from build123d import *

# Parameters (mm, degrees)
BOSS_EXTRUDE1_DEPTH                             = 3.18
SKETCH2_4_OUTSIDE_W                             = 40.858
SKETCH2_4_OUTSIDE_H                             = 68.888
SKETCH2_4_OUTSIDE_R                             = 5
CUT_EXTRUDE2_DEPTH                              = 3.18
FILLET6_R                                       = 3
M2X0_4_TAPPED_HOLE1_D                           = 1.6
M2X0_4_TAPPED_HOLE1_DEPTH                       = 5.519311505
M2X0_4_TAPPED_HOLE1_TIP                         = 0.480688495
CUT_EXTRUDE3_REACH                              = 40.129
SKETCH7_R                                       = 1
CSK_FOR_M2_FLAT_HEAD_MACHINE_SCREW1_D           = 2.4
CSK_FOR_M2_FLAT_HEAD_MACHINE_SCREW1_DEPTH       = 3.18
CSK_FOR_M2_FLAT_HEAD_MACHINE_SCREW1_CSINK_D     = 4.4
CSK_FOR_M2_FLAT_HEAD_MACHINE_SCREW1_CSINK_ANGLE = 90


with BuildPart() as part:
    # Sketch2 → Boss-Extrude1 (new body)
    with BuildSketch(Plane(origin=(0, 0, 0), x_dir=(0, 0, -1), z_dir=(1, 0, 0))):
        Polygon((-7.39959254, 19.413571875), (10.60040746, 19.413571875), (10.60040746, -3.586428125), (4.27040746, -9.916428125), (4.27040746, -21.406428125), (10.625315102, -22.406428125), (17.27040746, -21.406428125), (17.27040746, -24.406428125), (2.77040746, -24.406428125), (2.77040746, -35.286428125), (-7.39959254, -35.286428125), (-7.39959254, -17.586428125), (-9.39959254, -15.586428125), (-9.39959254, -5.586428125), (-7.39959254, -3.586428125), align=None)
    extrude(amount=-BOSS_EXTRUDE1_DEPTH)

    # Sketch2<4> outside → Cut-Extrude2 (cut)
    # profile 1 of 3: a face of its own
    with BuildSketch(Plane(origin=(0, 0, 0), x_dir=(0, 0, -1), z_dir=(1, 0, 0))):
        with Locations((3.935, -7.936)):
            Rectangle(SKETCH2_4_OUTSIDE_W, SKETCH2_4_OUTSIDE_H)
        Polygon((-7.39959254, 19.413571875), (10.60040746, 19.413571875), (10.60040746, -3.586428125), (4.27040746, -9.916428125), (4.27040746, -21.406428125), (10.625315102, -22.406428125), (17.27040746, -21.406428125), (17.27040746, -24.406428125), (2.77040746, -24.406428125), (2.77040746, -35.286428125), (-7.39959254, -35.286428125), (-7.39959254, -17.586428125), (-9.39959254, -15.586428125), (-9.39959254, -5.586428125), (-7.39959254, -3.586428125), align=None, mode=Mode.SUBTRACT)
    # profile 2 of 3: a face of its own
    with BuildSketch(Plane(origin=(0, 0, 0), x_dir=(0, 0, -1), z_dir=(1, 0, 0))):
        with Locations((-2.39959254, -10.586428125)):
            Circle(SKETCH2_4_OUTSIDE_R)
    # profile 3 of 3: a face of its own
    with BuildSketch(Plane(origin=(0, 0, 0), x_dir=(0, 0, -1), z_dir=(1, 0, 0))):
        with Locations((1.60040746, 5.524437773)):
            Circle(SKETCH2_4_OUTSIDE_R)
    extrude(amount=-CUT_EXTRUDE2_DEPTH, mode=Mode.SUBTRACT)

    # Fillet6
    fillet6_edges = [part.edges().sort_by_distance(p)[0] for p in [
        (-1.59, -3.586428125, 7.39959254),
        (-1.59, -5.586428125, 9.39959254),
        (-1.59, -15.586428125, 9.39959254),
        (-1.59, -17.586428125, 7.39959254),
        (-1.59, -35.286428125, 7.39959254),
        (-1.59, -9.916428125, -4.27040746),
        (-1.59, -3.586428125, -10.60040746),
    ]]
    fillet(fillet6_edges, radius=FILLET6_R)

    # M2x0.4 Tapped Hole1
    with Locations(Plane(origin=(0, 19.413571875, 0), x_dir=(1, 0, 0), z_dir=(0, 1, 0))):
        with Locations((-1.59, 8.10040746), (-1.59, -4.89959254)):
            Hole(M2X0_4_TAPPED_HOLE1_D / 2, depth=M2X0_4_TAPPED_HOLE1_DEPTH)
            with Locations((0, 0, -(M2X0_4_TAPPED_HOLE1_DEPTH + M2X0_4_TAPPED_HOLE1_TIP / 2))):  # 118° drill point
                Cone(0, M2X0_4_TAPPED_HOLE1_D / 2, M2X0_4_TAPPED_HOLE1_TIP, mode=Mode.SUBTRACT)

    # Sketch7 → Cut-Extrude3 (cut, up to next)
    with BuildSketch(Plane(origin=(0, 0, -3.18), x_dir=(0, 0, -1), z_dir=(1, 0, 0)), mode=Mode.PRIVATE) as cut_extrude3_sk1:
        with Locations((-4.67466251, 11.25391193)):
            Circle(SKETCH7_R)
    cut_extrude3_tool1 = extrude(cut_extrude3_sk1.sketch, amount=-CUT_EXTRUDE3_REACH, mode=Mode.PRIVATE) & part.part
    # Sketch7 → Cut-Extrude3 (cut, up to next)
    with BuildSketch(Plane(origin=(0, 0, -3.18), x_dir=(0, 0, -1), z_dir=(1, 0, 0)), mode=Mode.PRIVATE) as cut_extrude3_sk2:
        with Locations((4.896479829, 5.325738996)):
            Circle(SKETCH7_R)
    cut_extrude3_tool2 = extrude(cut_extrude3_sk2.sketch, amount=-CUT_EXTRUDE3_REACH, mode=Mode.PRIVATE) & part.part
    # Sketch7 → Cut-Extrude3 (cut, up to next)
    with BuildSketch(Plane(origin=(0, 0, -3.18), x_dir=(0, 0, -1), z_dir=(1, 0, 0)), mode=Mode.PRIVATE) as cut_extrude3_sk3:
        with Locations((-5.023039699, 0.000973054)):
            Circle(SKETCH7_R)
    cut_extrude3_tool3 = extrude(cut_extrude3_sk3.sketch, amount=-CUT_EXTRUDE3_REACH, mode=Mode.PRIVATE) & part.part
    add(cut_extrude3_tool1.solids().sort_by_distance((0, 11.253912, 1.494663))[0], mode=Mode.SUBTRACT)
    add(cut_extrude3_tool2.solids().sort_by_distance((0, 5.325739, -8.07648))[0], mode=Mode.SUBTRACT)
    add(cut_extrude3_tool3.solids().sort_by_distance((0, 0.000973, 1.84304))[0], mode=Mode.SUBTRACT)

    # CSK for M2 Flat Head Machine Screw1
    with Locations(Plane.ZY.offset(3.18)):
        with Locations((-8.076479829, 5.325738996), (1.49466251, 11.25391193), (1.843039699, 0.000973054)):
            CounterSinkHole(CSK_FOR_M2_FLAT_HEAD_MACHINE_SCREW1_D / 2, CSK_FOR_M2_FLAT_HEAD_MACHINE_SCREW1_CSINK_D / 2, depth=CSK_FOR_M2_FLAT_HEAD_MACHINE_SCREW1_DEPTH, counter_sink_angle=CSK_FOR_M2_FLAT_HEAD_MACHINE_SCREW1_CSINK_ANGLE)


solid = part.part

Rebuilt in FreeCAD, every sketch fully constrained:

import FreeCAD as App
import Part
import Sketcher
Q = App.Units.Quantity


def edges_at(feature, points):
    """Names of the edges that pass closest to the given points."""
    edges = feature.Shape.Edges
    near = lambda p: min(range(len(edges)), key=lambda i: edges[i].distToShape(Part.Vertex(*p))[0])
    return sorted({f"Edge{near(p) + 1}" for p in points})

doc = App.newDocument("Part")
body = doc.addObject("PartDesign::Body", "Body")

# Sketch on YZ plane
sketch1 = body.newObject("Sketcher::SketchObject", "Sketch")
sketch1.AttachmentSupport = (doc.getObject("YZ_Plane"), [""])
sketch1.MapMode = "FlatFace"
sketch1.addGeometry(Part.LineSegment(App.Vector(19.4, -10.6, 0), App.Vector(19.4, 7.4, 0)), False)
sketch1.addGeometry(Part.LineSegment(App.Vector(19.4, 7.4, 0), App.Vector(-3.6, 7.4, 0)), False)
sketch1.addGeometry(Part.LineSegment(App.Vector(-3.6, 7.4, 0), App.Vector(-5.6, 9.4, 0)), False)
sketch1.addGeometry(Part.LineSegment(App.Vector(-5.6, 9.4, 0), App.Vector(-15.6, 9.4, 0)), False)
sketch1.addGeometry(Part.LineSegment(App.Vector(-15.6, 9.4, 0), App.Vector(-17.6, 7.4, 0)), False)
sketch1.addGeometry(Part.LineSegment(App.Vector(-17.6, 7.4, 0), App.Vector(-35.3, 7.4, 0)), False)
sketch1.addGeometry(Part.LineSegment(App.Vector(-35.3, 7.4, 0), App.Vector(-35.3, -2.8, 0)), False)
sketch1.addGeometry(Part.LineSegment(App.Vector(-35.3, -2.8, 0), App.Vector(-24.4, -2.8, 0)), False)
sketch1.addGeometry(Part.LineSegment(App.Vector(-24.4, -2.8, 0), App.Vector(-24.4, -17.3, 0)), False)
sketch1.addGeometry(Part.LineSegment(App.Vector(-24.4, -17.3, 0), App.Vector(-21.4, -17.3, 0)), False)
sketch1.addGeometry(Part.LineSegment(App.Vector(-21.4, -17.3, 0), App.Vector(-22.4, -10.6, 0)), False)
sketch1.addGeometry(Part.LineSegment(App.Vector(-22.4, -10.6, 0), App.Vector(-21.4, -4.3, 0)), False)
sketch1.addGeometry(Part.LineSegment(App.Vector(-21.4, -4.3, 0), App.Vector(-9.9, -4.3, 0)), False)
sketch1.addGeometry(Part.LineSegment(App.Vector(-9.9, -4.3, 0), App.Vector(-3.6, -10.6, 0)), False)
sketch1.addGeometry(Part.LineSegment(App.Vector(-3.6, -10.6, 0), App.Vector(19.4, -10.6, 0)), False)
sketch1.addConstraint(Sketcher.Constraint("Coincident", 0, 2, 1, 1))
sketch1.addConstraint(Sketcher.Constraint("Coincident", 1, 2, 2, 1))
sketch1.addConstraint(Sketcher.Constraint("Coincident", 2, 2, 3, 1))
sketch1.addConstraint(Sketcher.Constraint("Coincident", 3, 2, 4, 1))
sketch1.addConstraint(Sketcher.Constraint("Coincident", 4, 2, 5, 1))
sketch1.addConstraint(Sketcher.Constraint("Coincident", 5, 2, 6, 1))
sketch1.addConstraint(Sketcher.Constraint("Coincident", 6, 2, 7, 1))
sketch1.addConstraint(Sketcher.Constraint("Coincident", 7, 2, 8, 1))
sketch1.addConstraint(Sketcher.Constraint("Coincident", 8, 2, 9, 1))
sketch1.addConstraint(Sketcher.Constraint("Coincident", 9, 2, 10, 1))
sketch1.addConstraint(Sketcher.Constraint("Coincident", 10, 2, 11, 1))
sketch1.addConstraint(Sketcher.Constraint("Coincident", 11, 2, 12, 1))
sketch1.addConstraint(Sketcher.Constraint("Coincident", 12, 2, 13, 1))
sketch1.addConstraint(Sketcher.Constraint("Coincident", 13, 2, 14, 1))
sketch1.addConstraint(Sketcher.Constraint("Coincident", 14, 2, 0, 1))
sketch1.addConstraint(Sketcher.Constraint("Vertical", 0))
sketch1.addConstraint(Sketcher.Constraint("Horizontal", 1))
sketch1.addConstraint(Sketcher.Constraint("Horizontal", 3))
sketch1.addConstraint(Sketcher.Constraint("Horizontal", 5))
sketch1.addConstraint(Sketcher.Constraint("Vertical", 6))
sketch1.addConstraint(Sketcher.Constraint("Horizontal", 7))
sketch1.addConstraint(Sketcher.Constraint("Vertical", 8))
sketch1.addConstraint(Sketcher.Constraint("Horizontal", 9))
sketch1.addConstraint(Sketcher.Constraint("Horizontal", 12))
sketch1.addConstraint(Sketcher.Constraint("Horizontal", 14))
sketch1.addConstraint(Sketcher.Constraint("Perpendicular", 2, 4))
sketch1.addConstraint(Sketcher.Constraint("Perpendicular", 4, 13))
sketch1.addConstraint(Sketcher.Constraint("Horizontal", 1, 2, 4, 2))
sketch1.addConstraint(Sketcher.Constraint("Vertical", 9, 2, 11, 2))
sketch1.addConstraint(Sketcher.Constraint("Vertical", 1, 2, 13, 2))
sketch1.addConstraint(Sketcher.Constraint("Equal", 2, 4))
sketch1.addConstraint(Sketcher.Constraint("DistanceX", 1, 2, 1, 1, Q("23 mm")))
sketch1.addConstraint(Sketcher.Constraint("DistanceX", 3, 2, 3, 1, Q("10 mm")))
sketch1.addConstraint(Sketcher.Constraint("DistanceX", 9, 1, 9, 2, Q("3 mm")))
sketch1.addConstraint(Sketcher.Constraint("DistanceY", 0, 1, 0, 2, Q("18 mm")))
sketch1.addConstraint(Sketcher.Constraint("DistanceX", 5, 2, 5, 1, Q("17.7 mm")))
sketch1.addConstraint(Sketcher.Constraint("DistanceY", 8, 2, 8, 1, Q("14.5 mm")))
sketch1.addConstraint(Sketcher.Constraint("DistanceX", 2, 2, 1, 2, Q("2 mm")))
sketch1.addConstraint(Sketcher.Constraint("DistanceX", 10, 2, 9, 2, Q("1 mm")))
sketch1.addConstraint(Sketcher.Constraint("DistanceY", 9, 2, 11, 2, Q("13 mm")))
sketch1.addConstraint(Sketcher.Constraint("DistanceX", 7, 1, 7, 2, Q("10.88 mm")))
sketch1.addConstraint(Sketcher.Constraint("DistanceX", 12, 1, 12, 2, Q("11.49 mm")))
sketch1.addConstraint(Sketcher.Constraint("DistanceX", -1, 1, 0, 2, Q("19.413572 mm")))
sketch1.addConstraint(Sketcher.Constraint("Distance", 10, Q("6.719915 mm")))
sketch1.addConstraint(Sketcher.Constraint("DistanceY", -1, 1, 0, 2, Q("7.399593 mm")))
pad1 = body.newObject("PartDesign::Pad", "Pad")
pad1.Profile = sketch1
pad1.Length = 3.18
pad1.Reversed = True

# Sketch on YZ plane
sketch2 = body.newObject("Sketcher::SketchObject", "Sketch001")
sketch2.AttachmentSupport = (doc.getObject("YZ_Plane"), [""])
sketch2.MapMode = "FlatFace"
sketch2.addGeometry(Part.LineSegment(App.Vector(26.5, 16.5, 0), App.Vector(-42.4, 16.5, 0)), False)
sketch2.addGeometry(Part.LineSegment(App.Vector(-42.4, 16.5, 0), App.Vector(-42.4, -24.4, 0)), False)
sketch2.addGeometry(Part.LineSegment(App.Vector(-42.4, -24.4, 0), App.Vector(26.5, -24.4, 0)), False)
sketch2.addGeometry(Part.LineSegment(App.Vector(26.5, -24.4, 0), App.Vector(26.5, 16.5, 0)), False)
sketch2.addGeometry(Part.LineSegment(App.Vector(-3.6, 7.4, 0), App.Vector(19.4, 7.4, 0)), False)
sketch2.addGeometry(Part.LineSegment(App.Vector(19.4, 7.4, 0), App.Vector(19.4, -10.6, 0)), False)
sketch2.addGeometry(Part.LineSegment(App.Vector(19.4, -10.6, 0), App.Vector(-3.6, -10.6, 0)), False)
sketch2.addGeometry(Part.LineSegment(App.Vector(-3.6, -10.6, 0), App.Vector(-9.9, -4.3, 0)), False)
sketch2.addGeometry(Part.LineSegment(App.Vector(-9.9, -4.3, 0), App.Vector(-21.4, -4.3, 0)), False)
sketch2.addGeometry(Part.LineSegment(App.Vector(-21.4, -4.3, 0), App.Vector(-22.4, -10.6, 0)), False)
sketch2.addGeometry(Part.LineSegment(App.Vector(-22.4, -10.6, 0), App.Vector(-21.4, -17.3, 0)), False)
sketch2.addGeometry(Part.LineSegment(App.Vector(-21.4, -17.3, 0), App.Vector(-24.4, -17.3, 0)), False)
sketch2.addGeometry(Part.LineSegment(App.Vector(-24.4, -17.3, 0), App.Vector(-24.4, -2.8, 0)), False)
sketch2.addGeometry(Part.LineSegment(App.Vector(-24.4, -2.8, 0), App.Vector(-35.3, -2.8, 0)), False)
sketch2.addGeometry(Part.LineSegment(App.Vector(-35.3, -2.8, 0), App.Vector(-35.3, 7.4, 0)), False)
sketch2.addGeometry(Part.LineSegment(App.Vector(-35.3, 7.4, 0), App.Vector(-17.6, 7.4, 0)), False)
sketch2.addGeometry(Part.LineSegment(App.Vector(-17.6, 7.4, 0), App.Vector(-15.6, 9.4, 0)), False)
sketch2.addGeometry(Part.LineSegment(App.Vector(-15.6, 9.4, 0), App.Vector(-5.6, 9.4, 0)), False)
sketch2.addGeometry(Part.LineSegment(App.Vector(-5.6, 9.4, 0), App.Vector(-3.6, 7.4, 0)), False)
sketch2.addGeometry(Part.Circle(App.Vector(-10.6, 2.4, 0), App.Vector(0, 0, 1), 5), False)
sketch2.addGeometry(Part.Circle(App.Vector(5.5, -1.6, 0), App.Vector(0, 0, 1), 5), False)
sketch2.addConstraint(Sketcher.Constraint("Coincident", 0, 2, 1, 1))
sketch2.addConstraint(Sketcher.Constraint("Coincident", 1, 2, 2, 1))
sketch2.addConstraint(Sketcher.Constraint("Coincident", 2, 2, 3, 1))
sketch2.addConstraint(Sketcher.Constraint("Coincident", 3, 2, 0, 1))
sketch2.addConstraint(Sketcher.Constraint("Coincident", 4, 2, 5, 1))
sketch2.addConstraint(Sketcher.Constraint("Coincident", 5, 2, 6, 1))
sketch2.addConstraint(Sketcher.Constraint("Coincident", 6, 2, 7, 1))
sketch2.addConstraint(Sketcher.Constraint("Coincident", 7, 2, 8, 1))
sketch2.addConstraint(Sketcher.Constraint("Coincident", 8, 2, 9, 1))
sketch2.addConstraint(Sketcher.Constraint("Coincident", 9, 2, 10, 1))
sketch2.addConstraint(Sketcher.Constraint("Coincident", 10, 2, 11, 1))
sketch2.addConstraint(Sketcher.Constraint("Coincident", 11, 2, 12, 1))
sketch2.addConstraint(Sketcher.Constraint("Coincident", 12, 2, 13, 1))
sketch2.addConstraint(Sketcher.Constraint("Coincident", 13, 2, 14, 1))
sketch2.addConstraint(Sketcher.Constraint("Coincident", 14, 2, 15, 1))
sketch2.addConstraint(Sketcher.Constraint("Coincident", 15, 2, 16, 1))
sketch2.addConstraint(Sketcher.Constraint("Coincident", 16, 2, 17, 1))
sketch2.addConstraint(Sketcher.Constraint("Coincident", 17, 2, 18, 1))
sketch2.addConstraint(Sketcher.Constraint("Coincident", 18, 2, 4, 1))
sketch2.addConstraint(Sketcher.Constraint("Horizontal", 0))
sketch2.addConstraint(Sketcher.Constraint("Vertical", 1))
sketch2.addConstraint(Sketcher.Constraint("Horizontal", 2))
sketch2.addConstraint(Sketcher.Constraint("Vertical", 3))
sketch2.addConstraint(Sketcher.Constraint("Horizontal", 4))
sketch2.addConstraint(Sketcher.Constraint("Vertical", 5))
sketch2.addConstraint(Sketcher.Constraint("Horizontal", 6))
sketch2.addConstraint(Sketcher.Constraint("Horizontal", 8))
sketch2.addConstraint(Sketcher.Constraint("Horizontal", 11))
sketch2.addConstraint(Sketcher.Constraint("Vertical", 12))
sketch2.addConstraint(Sketcher.Constraint("Horizontal", 13))
sketch2.addConstraint(Sketcher.Constraint("Vertical", 14))
sketch2.addConstraint(Sketcher.Constraint("Horizontal", 15))
sketch2.addConstraint(Sketcher.Constraint("Horizontal", 17))
sketch2.addConstraint(Sketcher.Constraint("Equal", 19, 20))
sketch2.addConstraint(Sketcher.Constraint("Perpendicular", 7, 16))
sketch2.addConstraint(Sketcher.Constraint("Perpendicular", 16, 18))
sketch2.addConstraint(Sketcher.Constraint("Horizontal", 4, 2, 14, 2))
sketch2.addConstraint(Sketcher.Constraint("Vertical", 8, 2, 10, 2))
sketch2.addConstraint(Sketcher.Constraint("Vertical", 6, 2, 18, 2))
sketch2.addConstraint(Sketcher.Constraint("Equal", 16, 18))
sketch2.addConstraint(Sketcher.Constraint("Diameter", 19, Q("10 mm")))
sketch2.addConstraint(Sketcher.Constraint("DistanceX", 4, 1, 4, 2, Q("23 mm")))
sketch2.addConstraint(Sketcher.Constraint("DistanceX", 11, 2, 11, 1, Q("3 mm")))
sketch2.addConstraint(Sketcher.Constraint("DistanceX", 17, 1, 17, 2, Q("10 mm")))
sketch2.addConstraint(Sketcher.Constraint("DistanceY", 5, 2, 5, 1, Q("18 mm")))
sketch2.addConstraint(Sketcher.Constraint("DistanceX", 15, 1, 15, 2, Q("17.7 mm")))
sketch2.addConstraint(Sketcher.Constraint("DistanceY", 12, 1, 12, 2, Q("14.5 mm")))
sketch2.addConstraint(Sketcher.Constraint("DistanceY", 20, 3, 19, 3, Q("4 mm")))
sketch2.addConstraint(Sketcher.Constraint("DistanceY", 20, 3, 4, 2, Q("9 mm")))
sketch2.addConstraint(Sketcher.Constraint("DistanceX", 19, 3, 4, 2, Q("30 mm")))
sketch2.addConstraint(Sketcher.Constraint("DistanceX", 9, 2, 8, 2, Q("1 mm")))
sketch2.addConstraint(Sketcher.Constraint("DistanceY", 10, 2, 8, 2, Q("13 mm")))
sketch2.addConstraint(Sketcher.Constraint("DistanceX", 15, 2, 19, 3, Q("7 mm")))
sketch2.addConstraint(Sketcher.Constraint("DistanceX", 8, 2, 8, 1, Q("11.49 mm")))
sketch2.addConstraint(Sketcher.Constraint("DistanceX", 13, 2, 13, 1, Q("10.88 mm")))
sketch2.addConstraint(Sketcher.Constraint("DistanceX", 0, 2, 0, 1, Q("68.888 mm")))
sketch2.addConstraint(Sketcher.Constraint("DistanceY", 1, 2, 1, 1, Q("40.858 mm")))
sketch2.addConstraint(Sketcher.Constraint("DistanceX", 0, 2, -1, 1, Q("42.38 mm")))
sketch2.addConstraint(Sketcher.Constraint("DistanceY", -1, 1, 0, 2, Q("16.494 mm")))
sketch2.addConstraint(Sketcher.Constraint("DistanceX", 19, 3, -1, 1, Q("10.586428 mm")))
sketch2.addConstraint(Sketcher.Constraint("Distance", 9, Q("6.433106 mm")))
sketch2.addConstraint(Sketcher.Constraint("DistanceY", -1, 1, 19, 3, Q("2.399593 mm")))
sketch2.addConstraint(Sketcher.Constraint("DistanceX", -1, 1, 20, 3, Q("5.524438 mm")))
pocket1 = body.newObject("PartDesign::Pocket", "Pocket")
pocket1.Profile = sketch2
pocket1.Length = 3.18
doc.recompute()

fillet = body.newObject("PartDesign::Fillet", "Fillet")
fillet.Base = (pocket1, edges_at(pocket1, [
    (-1.59, -3.586, 7.4),
    (-1.59, -5.586, 9.4),
    (-1.59, -15.586, 9.4),
    (-1.59, -17.586, 7.4),
    (-1.59, -35.286, 7.4),
    (-1.59, -9.916, -4.27),
    (-1.59, -3.586, -10.6),
]))
fillet.Radius = 3

# Sketch on XZ plane
sketch3 = body.newObject("Sketcher::SketchObject", "Sketch002")
sketch3.AttachmentSupport = (doc.getObject("XZ_Plane"), [""])
sketch3.MapMode = "FlatFace"
sketch3.AttachmentOffset = App.Placement(App.Vector(0, 0, -19.413572), App.Rotation())
sketch3.addGeometry(Part.Circle(App.Vector(-1.6, -8.1, 0), App.Vector(0, 0, 1), 0.8), False)
sketch3.addGeometry(Part.Circle(App.Vector(-1.6, 4.9, 0), App.Vector(0, 0, 1), 0.8), False)
sketch3.addConstraint(Sketcher.Constraint("Equal", 0, 1))
sketch3.addConstraint(Sketcher.Constraint("Vertical", 0, 3, 1, 3))
sketch3.addConstraint(Sketcher.Constraint("Diameter", 0, Q("1.6 mm")))
sketch3.addConstraint(Sketcher.Constraint("DistanceY", 0, 3, 1, 3, Q("13 mm")))
sketch3.addConstraint(Sketcher.Constraint("DistanceX", 0, 3, -1, 1, Q("1.59 mm")))
sketch3.addConstraint(Sketcher.Constraint("DistanceY", 0, 3, -1, 1, Q("8.100407 mm")))
doc.recompute()
hole = body.newObject("PartDesign::Hole", "Hole")
hole.Profile = sketch3
hole.ThreadType = "None"
hole.Diameter = 1.6
hole.DepthType = "Dimension"
hole.Depth = 5.519312
hole.DrillPoint = "Angled"
hole.DrillPointAngle = 118
hole.Reversed = True

# Sketch on YZ plane
sketch4 = body.newObject("Sketcher::SketchObject", "Sketch003")
sketch4.AttachmentSupport = (doc.getObject("YZ_Plane"), [""])
sketch4.MapMode = "FlatFace"
sketch4.addGeometry(Part.Circle(App.Vector(11.3, 1.5, 0), App.Vector(0, 0, 1), 1), False)
sketch4.addConstraint(Sketcher.Constraint("Diameter", 0, Q("2 mm")))
sketch4.addConstraint(Sketcher.Constraint("DistanceX", -1, 1, 0, 3, Q("11.253912 mm")))
sketch4.addConstraint(Sketcher.Constraint("DistanceY", -1, 1, 0, 3, Q("1.494663 mm")))
pocket2 = body.newObject("PartDesign::Pocket", "Pocket001")
pocket2.Profile = sketch4
pocket2.Type = "UpToFirst"

# Sketch on YZ plane
sketch5 = body.newObject("Sketcher::SketchObject", "Sketch004")
sketch5.AttachmentSupport = (doc.getObject("YZ_Plane"), [""])
sketch5.MapMode = "FlatFace"
sketch5.addGeometry(Part.Circle(App.Vector(5.3, -8.1, 0), App.Vector(0, 0, 1), 1), False)
sketch5.addConstraint(Sketcher.Constraint("Diameter", 0, Q("2 mm")))
sketch5.addConstraint(Sketcher.Constraint("DistanceX", -1, 1, 0, 3, Q("5.325739 mm")))
sketch5.addConstraint(Sketcher.Constraint("DistanceY", 0, 3, -1, 1, Q("8.07648 mm")))
pocket3 = body.newObject("PartDesign::Pocket", "Pocket002")
pocket3.Profile = sketch5
pocket3.Type = "UpToFirst"

# Sketch on YZ plane
sketch6 = body.newObject("Sketcher::SketchObject", "Sketch005")
sketch6.AttachmentSupport = (doc.getObject("YZ_Plane"), [""])
sketch6.MapMode = "FlatFace"
sketch6.addGeometry(Part.Circle(App.Vector(0, 1.8, 0), App.Vector(0, 0, 1), 1), False)
sketch6.addConstraint(Sketcher.Constraint("Diameter", 0, Q("2 mm")))
sketch6.addConstraint(Sketcher.Constraint("DistanceY", -1, 1, 0, 3, Q("1.84304 mm")))
sketch6.addConstraint(Sketcher.Constraint("DistanceX", -1, 1, 0, 3, Q("0.000973 mm")))
pocket4 = body.newObject("PartDesign::Pocket", "Pocket003")
pocket4.Profile = sketch6
pocket4.Type = "UpToFirst"

# Sketch on YZ plane
sketch7 = body.newObject("Sketcher::SketchObject", "Sketch006")
sketch7.AttachmentSupport = (doc.getObject("YZ_Plane"), [""])
sketch7.MapMode = "FlatFace"
sketch7.AttachmentOffset = App.Placement(App.Vector(0, 0, -3.18), App.Rotation())
sketch7.addGeometry(Part.Circle(App.Vector(5.3, -8.1, 0), App.Vector(0, 0, 1), 1.2), False)
sketch7.addGeometry(Part.Circle(App.Vector(11.3, 1.5, 0), App.Vector(0, 0, 1), 1.2), False)
sketch7.addGeometry(Part.Circle(App.Vector(0, 1.8, 0), App.Vector(0, 0, 1), 1.2), False)
sketch7.addConstraint(Sketcher.Constraint("Equal", 0, 1))
sketch7.addConstraint(Sketcher.Constraint("Equal", 1, 2))
sketch7.addConstraint(Sketcher.Constraint("Diameter", 0, Q("2.4 mm")))
sketch7.addConstraint(Sketcher.Constraint("DistanceX", -1, 1, 0, 3, Q("5.325739 mm")))
sketch7.addConstraint(Sketcher.Constraint("DistanceY", 0, 3, -1, 1, Q("8.07648 mm")))
sketch7.addConstraint(Sketcher.Constraint("DistanceX", -1, 1, 1, 3, Q("11.253912 mm")))
sketch7.addConstraint(Sketcher.Constraint("DistanceY", -1, 1, 2, 3, Q("1.84304 mm")))
sketch7.addConstraint(Sketcher.Constraint("DistanceX", 2, 3, 1, 3, Q("11.252939 mm")))
sketch7.addConstraint(Sketcher.Constraint("DistanceY", -1, 1, 1, 3, Q("1.494663 mm")))
doc.recompute()
hole2 = body.newObject("PartDesign::Hole", "Hole001")
hole2.Profile = sketch7
hole2.ThreadType = "None"
hole2.Diameter = 2.4
hole2.DepthType = "Dimension"
hole2.Depth = 3.18
hole2.DrillPoint = "Flat"
hole2.HoleCutType = "Countersink"
hole2.HoleCutDiameter = 4.4
hole2.HoleCutCountersinkAngle = 90
hole2.Reversed = True

doc.recompute()
